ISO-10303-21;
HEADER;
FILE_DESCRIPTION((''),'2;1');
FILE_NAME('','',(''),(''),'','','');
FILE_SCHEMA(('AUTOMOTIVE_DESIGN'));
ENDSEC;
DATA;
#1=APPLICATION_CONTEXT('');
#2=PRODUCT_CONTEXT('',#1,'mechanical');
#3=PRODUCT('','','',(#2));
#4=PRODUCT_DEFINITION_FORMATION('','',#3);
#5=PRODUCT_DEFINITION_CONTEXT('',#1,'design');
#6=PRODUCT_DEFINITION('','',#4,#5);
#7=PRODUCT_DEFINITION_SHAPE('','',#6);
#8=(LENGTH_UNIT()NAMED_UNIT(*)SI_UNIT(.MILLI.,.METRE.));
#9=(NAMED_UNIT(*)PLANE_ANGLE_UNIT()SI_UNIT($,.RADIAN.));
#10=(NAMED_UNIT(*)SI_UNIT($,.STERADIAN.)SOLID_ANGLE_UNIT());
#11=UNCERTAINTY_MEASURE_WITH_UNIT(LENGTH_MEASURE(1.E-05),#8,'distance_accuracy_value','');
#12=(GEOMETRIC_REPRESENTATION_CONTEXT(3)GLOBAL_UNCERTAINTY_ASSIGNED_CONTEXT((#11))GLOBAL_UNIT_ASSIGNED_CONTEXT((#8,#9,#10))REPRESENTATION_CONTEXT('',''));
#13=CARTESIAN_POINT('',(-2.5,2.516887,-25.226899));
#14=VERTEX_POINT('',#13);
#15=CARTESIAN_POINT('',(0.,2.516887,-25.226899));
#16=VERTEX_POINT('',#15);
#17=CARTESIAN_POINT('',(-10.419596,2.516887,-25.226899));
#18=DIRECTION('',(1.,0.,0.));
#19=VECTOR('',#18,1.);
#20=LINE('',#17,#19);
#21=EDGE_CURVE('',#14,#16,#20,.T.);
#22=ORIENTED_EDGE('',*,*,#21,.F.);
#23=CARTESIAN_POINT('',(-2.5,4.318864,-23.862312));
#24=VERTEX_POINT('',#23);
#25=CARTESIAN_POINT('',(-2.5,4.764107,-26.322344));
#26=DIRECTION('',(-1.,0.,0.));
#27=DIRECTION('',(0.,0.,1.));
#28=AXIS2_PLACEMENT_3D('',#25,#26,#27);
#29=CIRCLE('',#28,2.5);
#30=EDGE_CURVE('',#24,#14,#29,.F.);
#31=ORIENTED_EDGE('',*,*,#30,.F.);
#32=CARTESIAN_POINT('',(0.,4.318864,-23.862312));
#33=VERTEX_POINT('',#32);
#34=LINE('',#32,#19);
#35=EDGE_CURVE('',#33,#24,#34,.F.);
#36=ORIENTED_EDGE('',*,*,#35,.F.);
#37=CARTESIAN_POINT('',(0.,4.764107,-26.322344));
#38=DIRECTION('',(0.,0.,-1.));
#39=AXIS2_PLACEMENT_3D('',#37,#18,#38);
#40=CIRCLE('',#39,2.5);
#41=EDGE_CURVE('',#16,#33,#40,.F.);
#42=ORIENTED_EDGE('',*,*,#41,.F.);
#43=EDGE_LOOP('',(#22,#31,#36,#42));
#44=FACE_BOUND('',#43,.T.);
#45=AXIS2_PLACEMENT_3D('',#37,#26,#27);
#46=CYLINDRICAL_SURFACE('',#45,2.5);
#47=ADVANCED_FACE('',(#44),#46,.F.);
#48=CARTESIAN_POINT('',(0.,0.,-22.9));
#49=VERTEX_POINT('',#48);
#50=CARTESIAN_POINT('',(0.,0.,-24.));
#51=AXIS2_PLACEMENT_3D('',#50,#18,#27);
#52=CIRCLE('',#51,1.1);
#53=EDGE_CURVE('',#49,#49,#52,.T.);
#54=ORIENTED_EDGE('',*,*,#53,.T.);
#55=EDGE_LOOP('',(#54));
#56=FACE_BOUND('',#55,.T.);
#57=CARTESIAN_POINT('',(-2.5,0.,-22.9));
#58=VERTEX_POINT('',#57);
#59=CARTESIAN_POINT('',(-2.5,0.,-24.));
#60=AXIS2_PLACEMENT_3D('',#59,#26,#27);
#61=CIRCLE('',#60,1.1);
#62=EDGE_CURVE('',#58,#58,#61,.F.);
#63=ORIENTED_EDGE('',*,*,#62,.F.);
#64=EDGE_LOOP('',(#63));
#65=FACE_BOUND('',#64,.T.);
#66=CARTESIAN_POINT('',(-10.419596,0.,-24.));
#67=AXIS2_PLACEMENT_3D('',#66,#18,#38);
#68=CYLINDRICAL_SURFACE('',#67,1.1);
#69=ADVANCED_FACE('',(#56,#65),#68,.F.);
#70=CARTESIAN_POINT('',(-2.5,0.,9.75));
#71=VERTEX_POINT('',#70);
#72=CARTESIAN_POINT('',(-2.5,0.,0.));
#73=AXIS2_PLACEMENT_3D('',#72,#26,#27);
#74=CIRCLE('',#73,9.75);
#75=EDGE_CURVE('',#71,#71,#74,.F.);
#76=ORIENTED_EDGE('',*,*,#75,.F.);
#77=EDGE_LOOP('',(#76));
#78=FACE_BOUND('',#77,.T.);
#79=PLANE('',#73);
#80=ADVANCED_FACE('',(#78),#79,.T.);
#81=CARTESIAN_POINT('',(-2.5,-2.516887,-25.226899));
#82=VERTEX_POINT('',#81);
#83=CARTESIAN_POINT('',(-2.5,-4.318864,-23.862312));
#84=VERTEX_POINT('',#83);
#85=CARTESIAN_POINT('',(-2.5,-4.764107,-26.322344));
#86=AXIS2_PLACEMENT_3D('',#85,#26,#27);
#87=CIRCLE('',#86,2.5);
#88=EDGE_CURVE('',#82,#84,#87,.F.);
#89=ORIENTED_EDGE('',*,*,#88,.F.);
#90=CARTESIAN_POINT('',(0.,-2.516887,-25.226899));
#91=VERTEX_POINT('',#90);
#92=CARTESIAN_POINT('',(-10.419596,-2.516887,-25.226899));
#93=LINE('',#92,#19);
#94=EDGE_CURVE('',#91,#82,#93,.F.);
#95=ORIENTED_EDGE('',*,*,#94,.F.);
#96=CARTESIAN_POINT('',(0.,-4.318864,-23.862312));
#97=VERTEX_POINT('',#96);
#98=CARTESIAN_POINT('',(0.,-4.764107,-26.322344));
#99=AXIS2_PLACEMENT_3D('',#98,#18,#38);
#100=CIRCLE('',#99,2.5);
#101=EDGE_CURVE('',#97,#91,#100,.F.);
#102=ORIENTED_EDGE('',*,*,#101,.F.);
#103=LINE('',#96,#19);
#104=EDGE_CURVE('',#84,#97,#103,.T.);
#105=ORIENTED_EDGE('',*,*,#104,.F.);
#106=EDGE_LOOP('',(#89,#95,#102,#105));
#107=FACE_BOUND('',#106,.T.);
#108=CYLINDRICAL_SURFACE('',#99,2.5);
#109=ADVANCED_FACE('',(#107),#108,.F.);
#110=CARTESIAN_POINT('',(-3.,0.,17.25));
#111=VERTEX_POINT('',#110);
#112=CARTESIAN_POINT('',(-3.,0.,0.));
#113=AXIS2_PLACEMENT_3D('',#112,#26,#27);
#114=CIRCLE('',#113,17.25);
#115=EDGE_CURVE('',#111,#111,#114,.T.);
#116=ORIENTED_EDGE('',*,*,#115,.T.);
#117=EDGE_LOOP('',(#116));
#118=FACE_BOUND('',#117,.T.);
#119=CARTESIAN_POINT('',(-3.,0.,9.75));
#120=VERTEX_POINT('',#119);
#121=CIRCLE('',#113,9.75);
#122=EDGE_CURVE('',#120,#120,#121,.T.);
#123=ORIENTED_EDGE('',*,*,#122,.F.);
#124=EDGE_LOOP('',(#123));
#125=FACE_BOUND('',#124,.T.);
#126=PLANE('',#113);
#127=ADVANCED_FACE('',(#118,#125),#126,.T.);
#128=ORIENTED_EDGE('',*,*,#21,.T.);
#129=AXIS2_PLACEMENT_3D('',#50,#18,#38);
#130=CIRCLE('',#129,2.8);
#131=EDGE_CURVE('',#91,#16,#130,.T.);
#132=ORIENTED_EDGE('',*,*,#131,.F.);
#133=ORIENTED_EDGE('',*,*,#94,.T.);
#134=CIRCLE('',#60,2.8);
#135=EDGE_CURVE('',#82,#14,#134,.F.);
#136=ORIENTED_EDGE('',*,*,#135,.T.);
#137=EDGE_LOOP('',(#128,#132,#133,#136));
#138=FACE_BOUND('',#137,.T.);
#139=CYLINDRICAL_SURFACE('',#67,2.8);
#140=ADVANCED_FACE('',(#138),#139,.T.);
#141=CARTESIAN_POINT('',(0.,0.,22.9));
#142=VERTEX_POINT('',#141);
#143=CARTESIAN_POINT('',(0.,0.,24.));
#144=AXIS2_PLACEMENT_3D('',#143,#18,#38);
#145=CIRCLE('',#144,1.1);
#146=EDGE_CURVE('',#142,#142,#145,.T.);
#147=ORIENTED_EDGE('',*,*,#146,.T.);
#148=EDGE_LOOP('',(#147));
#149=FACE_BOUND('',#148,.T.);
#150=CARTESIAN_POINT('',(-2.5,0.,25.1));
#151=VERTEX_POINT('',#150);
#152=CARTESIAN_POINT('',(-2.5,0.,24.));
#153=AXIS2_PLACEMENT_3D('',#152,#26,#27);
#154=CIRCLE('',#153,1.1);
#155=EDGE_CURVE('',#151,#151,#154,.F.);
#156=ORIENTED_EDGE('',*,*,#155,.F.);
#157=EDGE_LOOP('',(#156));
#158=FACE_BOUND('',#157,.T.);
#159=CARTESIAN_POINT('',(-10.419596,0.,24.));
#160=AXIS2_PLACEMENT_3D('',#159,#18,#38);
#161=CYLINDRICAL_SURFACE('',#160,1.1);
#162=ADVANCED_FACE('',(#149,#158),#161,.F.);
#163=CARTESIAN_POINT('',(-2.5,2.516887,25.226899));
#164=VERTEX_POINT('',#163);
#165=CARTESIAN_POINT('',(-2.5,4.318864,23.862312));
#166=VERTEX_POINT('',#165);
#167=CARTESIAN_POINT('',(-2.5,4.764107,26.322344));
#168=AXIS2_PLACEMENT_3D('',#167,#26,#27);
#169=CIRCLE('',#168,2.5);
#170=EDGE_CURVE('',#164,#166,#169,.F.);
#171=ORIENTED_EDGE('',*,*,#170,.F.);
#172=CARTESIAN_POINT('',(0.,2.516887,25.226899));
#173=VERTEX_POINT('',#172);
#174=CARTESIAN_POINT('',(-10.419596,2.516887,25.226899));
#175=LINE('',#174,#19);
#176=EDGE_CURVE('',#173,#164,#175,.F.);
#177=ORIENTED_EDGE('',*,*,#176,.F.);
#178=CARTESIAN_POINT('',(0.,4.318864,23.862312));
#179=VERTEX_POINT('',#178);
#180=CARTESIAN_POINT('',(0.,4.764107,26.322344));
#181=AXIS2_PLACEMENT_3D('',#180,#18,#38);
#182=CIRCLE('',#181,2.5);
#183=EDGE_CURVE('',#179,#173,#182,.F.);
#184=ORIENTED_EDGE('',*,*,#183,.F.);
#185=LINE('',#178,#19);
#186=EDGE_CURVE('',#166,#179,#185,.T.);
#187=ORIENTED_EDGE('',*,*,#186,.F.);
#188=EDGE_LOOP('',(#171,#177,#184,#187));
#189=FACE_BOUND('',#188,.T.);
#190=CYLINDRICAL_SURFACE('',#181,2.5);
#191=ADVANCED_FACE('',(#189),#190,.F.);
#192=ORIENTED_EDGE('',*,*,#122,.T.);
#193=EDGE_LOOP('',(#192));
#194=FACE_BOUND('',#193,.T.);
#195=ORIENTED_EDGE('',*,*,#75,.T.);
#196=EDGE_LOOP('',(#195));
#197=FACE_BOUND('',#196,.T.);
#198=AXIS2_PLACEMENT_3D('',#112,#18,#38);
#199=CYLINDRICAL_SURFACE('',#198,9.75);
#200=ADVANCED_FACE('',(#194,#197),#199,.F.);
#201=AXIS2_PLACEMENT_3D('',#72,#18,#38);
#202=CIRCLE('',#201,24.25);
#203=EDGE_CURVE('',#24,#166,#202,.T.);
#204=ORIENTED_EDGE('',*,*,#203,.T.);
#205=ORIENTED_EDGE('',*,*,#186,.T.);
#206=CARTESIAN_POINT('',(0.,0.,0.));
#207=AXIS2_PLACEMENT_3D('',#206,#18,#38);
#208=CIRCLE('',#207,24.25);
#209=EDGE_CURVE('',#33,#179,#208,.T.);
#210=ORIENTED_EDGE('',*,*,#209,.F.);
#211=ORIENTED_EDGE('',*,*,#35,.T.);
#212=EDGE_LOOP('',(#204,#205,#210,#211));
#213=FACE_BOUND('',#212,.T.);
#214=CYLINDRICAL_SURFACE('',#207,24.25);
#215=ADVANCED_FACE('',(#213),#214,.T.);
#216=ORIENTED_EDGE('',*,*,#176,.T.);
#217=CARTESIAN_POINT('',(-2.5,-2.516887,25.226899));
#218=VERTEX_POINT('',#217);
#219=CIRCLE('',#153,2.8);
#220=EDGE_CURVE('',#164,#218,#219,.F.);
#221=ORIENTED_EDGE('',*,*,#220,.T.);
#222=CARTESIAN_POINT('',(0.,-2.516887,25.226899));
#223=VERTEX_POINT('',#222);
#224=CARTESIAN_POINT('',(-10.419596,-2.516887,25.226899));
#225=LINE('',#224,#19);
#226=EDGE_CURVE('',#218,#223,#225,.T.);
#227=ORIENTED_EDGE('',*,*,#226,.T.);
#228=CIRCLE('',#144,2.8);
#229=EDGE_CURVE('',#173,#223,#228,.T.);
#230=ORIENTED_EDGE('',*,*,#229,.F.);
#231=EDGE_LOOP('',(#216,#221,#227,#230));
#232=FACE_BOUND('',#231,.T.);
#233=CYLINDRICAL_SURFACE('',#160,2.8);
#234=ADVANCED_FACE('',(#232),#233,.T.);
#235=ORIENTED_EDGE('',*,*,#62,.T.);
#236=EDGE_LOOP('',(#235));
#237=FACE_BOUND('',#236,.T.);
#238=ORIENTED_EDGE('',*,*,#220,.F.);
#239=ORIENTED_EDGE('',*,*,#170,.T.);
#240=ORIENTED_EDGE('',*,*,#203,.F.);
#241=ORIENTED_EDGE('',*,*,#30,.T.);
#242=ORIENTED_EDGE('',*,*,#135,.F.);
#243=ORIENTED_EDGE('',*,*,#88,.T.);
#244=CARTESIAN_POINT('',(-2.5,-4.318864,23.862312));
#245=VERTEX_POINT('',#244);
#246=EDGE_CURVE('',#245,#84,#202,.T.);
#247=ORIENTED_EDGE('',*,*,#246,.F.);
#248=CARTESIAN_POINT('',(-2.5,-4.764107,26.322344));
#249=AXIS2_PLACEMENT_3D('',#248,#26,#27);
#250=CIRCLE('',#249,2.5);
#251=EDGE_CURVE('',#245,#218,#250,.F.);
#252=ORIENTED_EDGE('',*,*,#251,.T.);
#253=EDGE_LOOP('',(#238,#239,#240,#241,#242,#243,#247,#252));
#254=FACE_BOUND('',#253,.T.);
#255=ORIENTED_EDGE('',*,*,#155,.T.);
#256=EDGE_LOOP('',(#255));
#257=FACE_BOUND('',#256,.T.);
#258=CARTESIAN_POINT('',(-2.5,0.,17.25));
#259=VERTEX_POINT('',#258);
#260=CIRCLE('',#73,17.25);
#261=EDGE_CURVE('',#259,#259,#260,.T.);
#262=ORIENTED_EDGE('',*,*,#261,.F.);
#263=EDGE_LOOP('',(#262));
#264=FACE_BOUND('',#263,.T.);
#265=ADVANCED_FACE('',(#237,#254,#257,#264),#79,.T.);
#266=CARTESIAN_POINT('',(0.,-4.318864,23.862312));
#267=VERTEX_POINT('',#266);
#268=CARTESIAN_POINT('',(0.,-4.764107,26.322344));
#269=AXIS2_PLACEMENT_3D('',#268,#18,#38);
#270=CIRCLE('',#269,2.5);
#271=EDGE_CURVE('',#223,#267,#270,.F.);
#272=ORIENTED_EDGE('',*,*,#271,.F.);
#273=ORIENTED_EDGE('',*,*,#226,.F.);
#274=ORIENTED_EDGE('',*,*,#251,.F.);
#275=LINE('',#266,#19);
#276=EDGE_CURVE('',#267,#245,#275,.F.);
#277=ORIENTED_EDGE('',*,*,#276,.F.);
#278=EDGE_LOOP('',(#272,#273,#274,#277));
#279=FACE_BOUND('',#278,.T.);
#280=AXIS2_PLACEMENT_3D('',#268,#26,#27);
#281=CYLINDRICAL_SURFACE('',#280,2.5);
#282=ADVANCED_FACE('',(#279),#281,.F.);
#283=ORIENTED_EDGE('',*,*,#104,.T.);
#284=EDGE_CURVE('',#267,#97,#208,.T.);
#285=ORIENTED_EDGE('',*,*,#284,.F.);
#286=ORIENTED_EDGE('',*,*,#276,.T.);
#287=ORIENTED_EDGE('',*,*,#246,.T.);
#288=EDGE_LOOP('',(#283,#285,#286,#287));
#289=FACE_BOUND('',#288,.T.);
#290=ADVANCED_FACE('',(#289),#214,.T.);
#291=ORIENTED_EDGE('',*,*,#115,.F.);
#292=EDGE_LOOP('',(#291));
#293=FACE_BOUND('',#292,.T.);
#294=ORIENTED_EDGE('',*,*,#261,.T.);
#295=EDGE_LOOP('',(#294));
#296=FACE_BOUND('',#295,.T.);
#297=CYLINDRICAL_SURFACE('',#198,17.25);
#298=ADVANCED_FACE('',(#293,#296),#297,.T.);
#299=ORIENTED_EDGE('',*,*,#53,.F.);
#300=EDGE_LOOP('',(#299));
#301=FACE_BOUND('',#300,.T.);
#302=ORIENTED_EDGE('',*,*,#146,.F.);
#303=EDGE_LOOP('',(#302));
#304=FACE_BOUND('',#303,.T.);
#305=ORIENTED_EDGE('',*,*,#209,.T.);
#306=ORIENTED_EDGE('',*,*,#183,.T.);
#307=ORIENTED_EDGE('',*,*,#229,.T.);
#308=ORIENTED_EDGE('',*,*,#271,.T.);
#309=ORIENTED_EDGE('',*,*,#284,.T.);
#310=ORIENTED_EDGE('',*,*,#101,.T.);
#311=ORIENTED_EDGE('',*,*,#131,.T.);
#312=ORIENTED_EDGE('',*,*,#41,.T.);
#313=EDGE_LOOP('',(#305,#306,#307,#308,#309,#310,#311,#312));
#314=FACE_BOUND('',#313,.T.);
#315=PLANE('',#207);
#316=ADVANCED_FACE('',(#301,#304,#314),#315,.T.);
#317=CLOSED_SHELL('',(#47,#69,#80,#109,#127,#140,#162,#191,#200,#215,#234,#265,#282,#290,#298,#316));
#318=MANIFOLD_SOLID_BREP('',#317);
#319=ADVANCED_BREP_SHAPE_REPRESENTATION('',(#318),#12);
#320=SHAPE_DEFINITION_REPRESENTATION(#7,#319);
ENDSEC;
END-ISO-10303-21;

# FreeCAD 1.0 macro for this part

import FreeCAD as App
import Part
import Sketcher
from FreeCAD import Vector
Q = App.Units.Quantity


def edges_at(feature, points):
    """Names of the edges that pass closest to the given points."""
    edges = feature.Shape.Edges
    near = lambda p: min(range(len(edges)), key=lambda i: edges[i].distToShape(Part.Vertex(*p))[0])
    return sorted({f"Edge{near(p) + 1}" for p in points})

doc = App.newDocument("Part")
body = doc.addObject("PartDesign::Body", "Body")

sketch1 = body.newObject("Sketcher::SketchObject", "Sketch")
sketch1.AttachmentSupport = (doc.getObject("XY_Plane"), [""])
sketch1.MapMode = "FlatFace"
sketch1.addGeometry([
    Part.LineSegment(Vector(-2.5, 0, 0), Vector(0, 0, 0)),
    Part.LineSegment(Vector(0, 0, 0), Vector(0, 24.2, 0)),
    Part.LineSegment(Vector(0, 24.2, 0), Vector(-2.5, 24.2, 0)),
    Part.LineSegment(Vector(-2.5, 24.2, 0), Vector(-2.5, 0, 0)),
], False)
sketch1.addConstraint([
    Sketcher.Constraint("Coincident", 0, 2, 1, 1),
    Sketcher.Constraint("Coincident", 1, 2, 2, 1),
    Sketcher.Constraint("Coincident", 2, 2, 3, 1),
    Sketcher.Constraint("Coincident", 3, 2, 0, 1),
    Sketcher.Constraint("Horizontal", 0),
    Sketcher.Constraint("Vertical", 1),
    Sketcher.Constraint("Horizontal", 2),
    Sketcher.Constraint("Vertical", 3),
    Sketcher.Constraint("Coincident", 0, 2, -1, 1),
    Sketcher.Constraint("DistanceX", 0, 1, 0, 2, Q("2.5 mm")),
    Sketcher.Constraint("DistanceY", 1, 1, 1, 2, Q("24.25 mm")),
])
revolution = body.newObject("PartDesign::Revolution", "Revolution")
revolution.Profile = sketch1
revolution.ReferenceAxis = (sketch1, ["H_Axis"])
revolution.Angle = 360

sketch2 = body.newObject("Sketcher::SketchObject", "Sketch001")
sketch2.AttachmentSupport = (doc.getObject("YZ_Plane"), [""])
sketch2.MapMode = "FlatFace"
sketch2.addGeometry([
    Part.Circle(Vector(0, 24, 0), Vector(0, 0, 1), 2.8),
    Part.Circle(Vector(0, 24, 0), Vector(0, 0, 1), 1.1),
    Part.Circle(Vector(0, -24, 0), Vector(0, 0, 1), 2.8),
    Part.Circle(Vector(0, -24, 0), Vector(0, 0, 1), 1.1),
], False)
sketch2.addConstraint([
    Sketcher.Constraint("Coincident", 1, 3, 0, 3),
    Sketcher.Constraint("Coincident", 3, 3, 2, 3),
    Sketcher.Constraint("Equal", 0, 2),
    Sketcher.Constraint("Equal", 1, 3),
    Sketcher.Constraint("Symmetric", 0, 3, 2, 3, -1, 1),
    Sketcher.Constraint("PointOnObject", 0, 3, -2),
    Sketcher.Constraint("Diameter", 0, Q("5.6 mm")),
    Sketcher.Constraint("Diameter", 1, Q("2.2 mm")),
    Sketcher.Constraint("DistanceY", -1, 1, 0, 3, Q("24 mm")),
])
pad1 = body.newObject("PartDesign::Pad", "Pad")
pad1.Profile = sketch2
pad1.Length = 2.5
pad1.Reversed = True
doc.recompute()

fillet = body.newObject("PartDesign::Fillet", "Fillet")
fillet.Base = (pad1, edges_at(pad1, [
    (-1.25, 2.799, 24.088),
    (-1.25, -2.799, 24.088),
    (-1.25, -2.799, -24.088),
    (-1.25, 2.799, -24.088),
]))
fillet.Radius = 2.5

sketch3 = body.newObject("Sketcher::SketchObject", "Sketch002")
sketch3.AttachmentSupport = (doc.getObject("YZ_Plane"), [""])
sketch3.MapMode = "FlatFace"
sketch3.AttachmentOffset = App.Placement(Vector(0, 0, -2.5), App.Rotation())
sketch3.addGeometry([
    Part.Circle(Vector(0, 0, 0), Vector(0, 0, 1), 17),
    Part.Circle(Vector(0, 0, 0), Vector(0, 0, 1), 10),
], False)
sketch3.addConstraint([
    Sketcher.Constraint("Coincident", 0, 3, -1, 1),
    Sketcher.Constraint("Coincident", 1, 3, -1, 1),
    Sketcher.Constraint("Diameter", 0, Q("34.5 mm")),
    Sketcher.Constraint("Diameter", 1, Q("19.5 mm")),
])
pad2 = body.newObject("PartDesign::Pad", "Pad001")
pad2.Profile = sketch3
pad2.Length = 0.5
pad2.Reversed = True

sketch4 = body.newObject("Sketcher::SketchObject", "Sketch003")
sketch4.AttachmentSupport = (doc.getObject("YZ_Plane"), [""])
sketch4.MapMode = "FlatFace"
sketch4.addGeometry([
    Part.Circle(Vector(0, 24, 0), Vector(0, 0, 1), 1.1),
    Part.Circle(Vector(0, -24, 0), Vector(0, 0, 1), 1.1),
], False)
sketch4.addConstraint([
    Sketcher.Constraint("Equal", 0, 1),
    Sketcher.Constraint("Symmetric", 0, 3, 1, 3, -1, 1),
    Sketcher.Constraint("PointOnObject", 0, 3, -2),
    Sketcher.Constraint("Diameter", 0, Q("2.2 mm")),
    Sketcher.Constraint("DistanceY", -1, 1, 0, 3, Q("24 mm")),
])
pocket1 = body.newObject("PartDesign::Pocket", "Pocket")
pocket1.Profile = sketch4
pocket1.Type = "ThroughAll"
pocket1.Midplane = True

doc.recompute()
